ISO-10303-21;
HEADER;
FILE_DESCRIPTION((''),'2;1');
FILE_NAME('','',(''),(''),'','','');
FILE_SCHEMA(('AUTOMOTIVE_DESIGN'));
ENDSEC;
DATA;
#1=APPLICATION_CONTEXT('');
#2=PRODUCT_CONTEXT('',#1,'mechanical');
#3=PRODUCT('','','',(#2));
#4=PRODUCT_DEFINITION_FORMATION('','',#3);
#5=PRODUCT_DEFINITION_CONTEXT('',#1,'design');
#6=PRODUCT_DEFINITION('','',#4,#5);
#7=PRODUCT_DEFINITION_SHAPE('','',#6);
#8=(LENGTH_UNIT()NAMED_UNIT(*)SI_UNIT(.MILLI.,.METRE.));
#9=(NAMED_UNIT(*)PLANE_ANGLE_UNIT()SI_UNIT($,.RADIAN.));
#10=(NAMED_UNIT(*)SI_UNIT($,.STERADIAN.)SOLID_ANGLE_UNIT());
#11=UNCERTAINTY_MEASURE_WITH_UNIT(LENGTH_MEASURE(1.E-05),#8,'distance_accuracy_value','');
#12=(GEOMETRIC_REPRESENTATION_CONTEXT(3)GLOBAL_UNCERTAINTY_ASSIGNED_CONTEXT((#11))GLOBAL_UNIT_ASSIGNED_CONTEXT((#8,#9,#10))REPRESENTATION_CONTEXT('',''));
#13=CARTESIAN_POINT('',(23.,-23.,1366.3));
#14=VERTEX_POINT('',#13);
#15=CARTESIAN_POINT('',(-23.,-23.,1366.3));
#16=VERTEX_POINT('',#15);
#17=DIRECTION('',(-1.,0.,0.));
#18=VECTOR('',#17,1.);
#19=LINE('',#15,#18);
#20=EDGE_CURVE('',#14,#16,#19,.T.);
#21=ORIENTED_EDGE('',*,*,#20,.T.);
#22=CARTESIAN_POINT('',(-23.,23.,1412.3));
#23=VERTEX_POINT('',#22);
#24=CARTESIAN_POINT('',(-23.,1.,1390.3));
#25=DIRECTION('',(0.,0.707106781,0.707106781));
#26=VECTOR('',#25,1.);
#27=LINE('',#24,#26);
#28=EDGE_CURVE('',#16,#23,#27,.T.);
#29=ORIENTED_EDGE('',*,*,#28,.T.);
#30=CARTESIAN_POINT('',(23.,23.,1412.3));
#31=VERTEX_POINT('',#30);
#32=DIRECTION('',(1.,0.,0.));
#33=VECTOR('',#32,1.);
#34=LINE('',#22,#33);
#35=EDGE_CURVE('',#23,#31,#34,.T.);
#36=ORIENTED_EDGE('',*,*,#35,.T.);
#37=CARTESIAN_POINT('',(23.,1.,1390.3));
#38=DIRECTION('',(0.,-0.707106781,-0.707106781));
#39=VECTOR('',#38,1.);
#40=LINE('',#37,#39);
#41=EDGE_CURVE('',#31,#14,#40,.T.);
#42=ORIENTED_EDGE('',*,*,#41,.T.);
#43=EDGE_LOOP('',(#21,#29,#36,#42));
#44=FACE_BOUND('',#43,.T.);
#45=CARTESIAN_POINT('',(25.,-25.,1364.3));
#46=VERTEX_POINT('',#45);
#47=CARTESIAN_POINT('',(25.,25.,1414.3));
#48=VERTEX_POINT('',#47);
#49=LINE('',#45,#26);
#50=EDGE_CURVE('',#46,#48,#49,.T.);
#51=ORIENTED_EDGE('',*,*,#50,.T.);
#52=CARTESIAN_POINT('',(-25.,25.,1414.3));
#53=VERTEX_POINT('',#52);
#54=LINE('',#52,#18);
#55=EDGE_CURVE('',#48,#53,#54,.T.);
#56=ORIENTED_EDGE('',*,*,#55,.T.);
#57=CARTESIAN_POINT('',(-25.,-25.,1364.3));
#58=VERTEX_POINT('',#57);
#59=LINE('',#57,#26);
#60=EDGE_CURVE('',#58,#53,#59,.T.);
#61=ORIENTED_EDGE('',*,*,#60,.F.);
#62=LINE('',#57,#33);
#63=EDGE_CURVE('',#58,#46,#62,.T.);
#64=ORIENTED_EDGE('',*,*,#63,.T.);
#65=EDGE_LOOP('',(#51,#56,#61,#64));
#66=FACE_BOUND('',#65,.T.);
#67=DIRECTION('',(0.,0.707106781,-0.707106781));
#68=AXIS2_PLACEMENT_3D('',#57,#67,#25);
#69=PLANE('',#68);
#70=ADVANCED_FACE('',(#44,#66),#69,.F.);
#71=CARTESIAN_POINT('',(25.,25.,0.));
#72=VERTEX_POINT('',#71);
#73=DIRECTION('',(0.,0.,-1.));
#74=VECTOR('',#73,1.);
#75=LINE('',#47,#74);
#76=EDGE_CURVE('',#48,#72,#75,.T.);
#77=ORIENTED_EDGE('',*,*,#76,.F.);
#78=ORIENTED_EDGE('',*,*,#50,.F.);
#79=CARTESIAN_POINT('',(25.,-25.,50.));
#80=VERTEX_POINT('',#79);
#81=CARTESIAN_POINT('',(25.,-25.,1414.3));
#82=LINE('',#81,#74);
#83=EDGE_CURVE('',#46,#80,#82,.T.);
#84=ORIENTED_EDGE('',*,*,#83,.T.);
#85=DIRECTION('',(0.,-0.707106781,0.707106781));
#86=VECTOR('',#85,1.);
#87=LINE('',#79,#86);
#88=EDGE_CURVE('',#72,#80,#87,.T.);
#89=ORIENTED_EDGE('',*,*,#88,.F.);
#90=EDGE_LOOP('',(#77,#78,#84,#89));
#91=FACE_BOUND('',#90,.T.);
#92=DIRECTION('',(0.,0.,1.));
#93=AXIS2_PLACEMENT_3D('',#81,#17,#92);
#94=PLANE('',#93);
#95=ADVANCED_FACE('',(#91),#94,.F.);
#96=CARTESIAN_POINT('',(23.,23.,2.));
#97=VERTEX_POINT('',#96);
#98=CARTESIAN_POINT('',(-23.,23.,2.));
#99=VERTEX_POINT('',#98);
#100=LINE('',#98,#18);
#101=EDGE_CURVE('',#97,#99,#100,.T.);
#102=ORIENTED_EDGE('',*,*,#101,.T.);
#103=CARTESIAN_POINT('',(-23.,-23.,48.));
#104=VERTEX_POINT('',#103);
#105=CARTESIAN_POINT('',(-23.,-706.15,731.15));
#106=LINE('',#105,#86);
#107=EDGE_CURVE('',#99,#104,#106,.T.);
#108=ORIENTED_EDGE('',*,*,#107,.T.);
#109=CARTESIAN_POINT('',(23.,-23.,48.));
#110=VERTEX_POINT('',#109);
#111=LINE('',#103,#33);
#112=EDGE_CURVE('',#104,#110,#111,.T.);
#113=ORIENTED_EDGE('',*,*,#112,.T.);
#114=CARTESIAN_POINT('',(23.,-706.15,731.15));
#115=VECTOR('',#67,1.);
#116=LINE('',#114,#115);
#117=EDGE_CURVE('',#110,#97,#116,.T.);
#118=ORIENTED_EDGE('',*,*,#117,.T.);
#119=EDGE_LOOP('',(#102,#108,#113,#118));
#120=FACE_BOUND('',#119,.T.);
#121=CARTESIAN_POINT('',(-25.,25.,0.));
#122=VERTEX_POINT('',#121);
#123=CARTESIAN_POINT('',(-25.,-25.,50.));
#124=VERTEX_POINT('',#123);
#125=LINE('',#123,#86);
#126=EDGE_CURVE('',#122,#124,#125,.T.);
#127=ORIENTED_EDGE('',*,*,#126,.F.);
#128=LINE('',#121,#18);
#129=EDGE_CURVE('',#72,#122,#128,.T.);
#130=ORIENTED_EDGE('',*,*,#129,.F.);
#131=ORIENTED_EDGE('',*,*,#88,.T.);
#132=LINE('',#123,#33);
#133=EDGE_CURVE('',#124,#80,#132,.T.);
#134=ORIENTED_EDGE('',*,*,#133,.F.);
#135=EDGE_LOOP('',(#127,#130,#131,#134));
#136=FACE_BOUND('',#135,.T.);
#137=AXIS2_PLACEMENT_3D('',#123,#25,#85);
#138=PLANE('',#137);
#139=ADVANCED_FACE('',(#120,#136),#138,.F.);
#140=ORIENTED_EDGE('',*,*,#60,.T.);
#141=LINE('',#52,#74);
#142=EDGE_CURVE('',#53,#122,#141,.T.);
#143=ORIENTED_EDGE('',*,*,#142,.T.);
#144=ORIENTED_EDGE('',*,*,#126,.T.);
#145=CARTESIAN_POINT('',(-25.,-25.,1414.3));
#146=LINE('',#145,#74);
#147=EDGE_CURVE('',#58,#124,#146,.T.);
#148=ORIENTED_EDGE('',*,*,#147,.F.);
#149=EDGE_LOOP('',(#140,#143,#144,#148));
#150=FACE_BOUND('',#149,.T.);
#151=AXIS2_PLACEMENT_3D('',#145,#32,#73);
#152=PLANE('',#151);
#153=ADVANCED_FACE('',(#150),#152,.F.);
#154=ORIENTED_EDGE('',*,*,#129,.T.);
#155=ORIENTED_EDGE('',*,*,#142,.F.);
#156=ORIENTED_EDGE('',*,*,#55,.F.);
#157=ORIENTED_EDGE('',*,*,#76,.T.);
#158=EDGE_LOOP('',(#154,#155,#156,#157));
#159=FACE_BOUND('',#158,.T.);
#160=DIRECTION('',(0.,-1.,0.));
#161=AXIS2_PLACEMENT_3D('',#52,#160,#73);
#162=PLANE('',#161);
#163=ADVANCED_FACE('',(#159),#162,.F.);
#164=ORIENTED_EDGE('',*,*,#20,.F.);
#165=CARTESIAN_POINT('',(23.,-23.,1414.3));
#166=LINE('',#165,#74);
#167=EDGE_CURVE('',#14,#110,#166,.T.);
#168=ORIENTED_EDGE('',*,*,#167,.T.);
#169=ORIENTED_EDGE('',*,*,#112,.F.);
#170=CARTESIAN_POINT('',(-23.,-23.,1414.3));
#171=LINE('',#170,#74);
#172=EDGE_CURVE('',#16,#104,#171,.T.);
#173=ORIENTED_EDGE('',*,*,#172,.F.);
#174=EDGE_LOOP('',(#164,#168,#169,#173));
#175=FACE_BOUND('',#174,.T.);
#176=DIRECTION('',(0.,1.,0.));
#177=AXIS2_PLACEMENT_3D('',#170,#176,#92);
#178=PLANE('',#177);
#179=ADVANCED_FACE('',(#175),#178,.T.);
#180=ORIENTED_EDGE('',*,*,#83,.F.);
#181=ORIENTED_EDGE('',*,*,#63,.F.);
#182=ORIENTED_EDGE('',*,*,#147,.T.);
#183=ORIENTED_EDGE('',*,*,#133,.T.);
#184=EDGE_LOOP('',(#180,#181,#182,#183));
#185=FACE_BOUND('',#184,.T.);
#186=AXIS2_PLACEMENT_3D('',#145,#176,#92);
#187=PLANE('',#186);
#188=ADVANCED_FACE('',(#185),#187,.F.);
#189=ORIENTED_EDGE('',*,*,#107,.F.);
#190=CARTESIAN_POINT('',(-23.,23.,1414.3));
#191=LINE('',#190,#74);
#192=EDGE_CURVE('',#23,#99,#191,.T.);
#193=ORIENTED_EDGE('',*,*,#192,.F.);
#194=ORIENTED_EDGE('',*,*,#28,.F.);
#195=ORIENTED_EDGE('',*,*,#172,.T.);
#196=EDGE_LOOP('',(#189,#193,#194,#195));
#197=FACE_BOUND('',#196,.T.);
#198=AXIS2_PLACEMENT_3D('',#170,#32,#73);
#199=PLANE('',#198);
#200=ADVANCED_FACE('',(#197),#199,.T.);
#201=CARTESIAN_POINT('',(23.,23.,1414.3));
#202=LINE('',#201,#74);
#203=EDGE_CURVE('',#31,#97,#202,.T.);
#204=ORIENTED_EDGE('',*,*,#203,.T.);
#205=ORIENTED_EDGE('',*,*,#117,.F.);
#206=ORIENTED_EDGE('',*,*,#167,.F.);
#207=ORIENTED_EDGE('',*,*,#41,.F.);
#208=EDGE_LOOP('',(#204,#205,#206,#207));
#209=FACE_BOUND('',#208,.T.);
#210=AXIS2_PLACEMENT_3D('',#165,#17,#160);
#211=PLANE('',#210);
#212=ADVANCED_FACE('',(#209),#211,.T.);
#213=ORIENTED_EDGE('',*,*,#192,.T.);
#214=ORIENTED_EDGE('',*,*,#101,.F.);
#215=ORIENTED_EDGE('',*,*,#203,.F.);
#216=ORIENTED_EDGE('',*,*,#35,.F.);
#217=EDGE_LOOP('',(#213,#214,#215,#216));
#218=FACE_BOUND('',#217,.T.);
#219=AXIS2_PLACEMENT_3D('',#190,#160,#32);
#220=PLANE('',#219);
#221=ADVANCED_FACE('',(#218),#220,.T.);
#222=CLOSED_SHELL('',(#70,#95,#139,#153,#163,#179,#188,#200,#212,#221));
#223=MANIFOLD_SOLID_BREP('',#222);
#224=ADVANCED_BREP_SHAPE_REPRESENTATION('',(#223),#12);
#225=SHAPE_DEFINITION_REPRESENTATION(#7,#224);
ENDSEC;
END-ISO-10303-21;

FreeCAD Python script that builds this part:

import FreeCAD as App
import Part
import Sketcher

V = App.Vector


def add_polygon(sketch, points):
    """Adds a closed chain of lines whose ends are joined by coincident constraints."""
    first, n = sketch.GeometryCount, len(points)
    for a, b in zip(points, points[1:] + points[:1]):
        sketch.addGeometry(Part.LineSegment(App.Vector(*a, 0), App.Vector(*b, 0)), False)
    for i in range(n):
        sketch.addConstraint(Sketcher.Constraint("Coincident", first + i, 2, first + (i + 1) % n, 1))

doc = App.newDocument("Part")
body = doc.addObject("PartDesign::Body", "Body")

# Sketch on XY plane
sketch1 = body.newObject("Sketcher::SketchObject", "Sketch")
sketch1.AttachmentSupport = (doc.getObject("XY_Plane"), [""])
sketch1.MapMode = "FlatFace"
add_polygon(sketch1, [(-25, 25), (-25, -25), (25, -25), (25, 25)])  # lines 0-3
add_polygon(sketch1, [(23, -23), (-23, -23), (-23, 23), (23, 23)])  # lines 4-7
sketch1.addConstraint([
    Sketcher.Constraint("Vertical", 0),
    Sketcher.Constraint("Horizontal", 1),
    Sketcher.Constraint("Vertical", 2),
    Sketcher.Constraint("Horizontal", 3),
    Sketcher.Constraint("Horizontal", 4),
    Sketcher.Constraint("Vertical", 5),
    Sketcher.Constraint("Horizontal", 6),
    Sketcher.Constraint("Vertical", 7),
    Sketcher.Constraint("Symmetric", 0, 2, 2, 2, -1, 1),
    Sketcher.Constraint("Symmetric", 4, 2, 6, 2, -1, 1),
    Sketcher.Constraint("Equal", 3, 0),
    Sketcher.Constraint("Equal", 6, 5),
    Sketcher.Constraint("DistanceX", 1, 1, 1, 2, 50.0),
    Sketcher.Constraint("DistanceX", 4, 2, 4, 1, 46.0),
])
pad1 = body.newObject("PartDesign::Pad", "Pad")
pad1.Profile = sketch1
pad1.Length = 1414.3

# Sketch on YZ plane
sketch2 = body.newObject("Sketcher::SketchObject", "Sketch001")
sketch2.AttachmentSupport = (doc.getObject("YZ_Plane"), [""])
sketch2.MapMode = "FlatFace"
sketch2.AttachmentOffset = App.Placement(V(0, 0, 25), App.Rotation())
add_polygon(sketch2, [(25, 1414), (-25, 1414), (-25, 1364)])  # lines 0-2
add_polygon(sketch2, [(-25, 0), (25, 0), (-25, 50)])  # lines 3-5
sketch2.addConstraint([
    Sketcher.Constraint("Horizontal", 0),
    Sketcher.Constraint("Vertical", 1),
    Sketcher.Constraint("Horizontal", 3),
    Sketcher.Constraint("Vertical", 5),
    Sketcher.Constraint("Symmetric", 3, 2, 5, 2, -1, 1),
    Sketcher.Constraint("Perpendicular", 2, 4),
    Sketcher.Constraint("Vertical", 2, 2, 3, 2),
    Sketcher.Constraint("Vertical", 1, 2, 4, 2),
    Sketcher.Constraint("Equal", 3, 1),
    Sketcher.Constraint("DistanceX", 0, 2, 0, 1, 50.0),
    Sketcher.Constraint("DistanceY", -1, 1, 0, 2, 1414.3),
])
pocket1 = body.newObject("PartDesign::Pocket", "Pocket")
pocket1.Profile = sketch2
pocket1.Type = "ThroughAll"

doc.recompute()
